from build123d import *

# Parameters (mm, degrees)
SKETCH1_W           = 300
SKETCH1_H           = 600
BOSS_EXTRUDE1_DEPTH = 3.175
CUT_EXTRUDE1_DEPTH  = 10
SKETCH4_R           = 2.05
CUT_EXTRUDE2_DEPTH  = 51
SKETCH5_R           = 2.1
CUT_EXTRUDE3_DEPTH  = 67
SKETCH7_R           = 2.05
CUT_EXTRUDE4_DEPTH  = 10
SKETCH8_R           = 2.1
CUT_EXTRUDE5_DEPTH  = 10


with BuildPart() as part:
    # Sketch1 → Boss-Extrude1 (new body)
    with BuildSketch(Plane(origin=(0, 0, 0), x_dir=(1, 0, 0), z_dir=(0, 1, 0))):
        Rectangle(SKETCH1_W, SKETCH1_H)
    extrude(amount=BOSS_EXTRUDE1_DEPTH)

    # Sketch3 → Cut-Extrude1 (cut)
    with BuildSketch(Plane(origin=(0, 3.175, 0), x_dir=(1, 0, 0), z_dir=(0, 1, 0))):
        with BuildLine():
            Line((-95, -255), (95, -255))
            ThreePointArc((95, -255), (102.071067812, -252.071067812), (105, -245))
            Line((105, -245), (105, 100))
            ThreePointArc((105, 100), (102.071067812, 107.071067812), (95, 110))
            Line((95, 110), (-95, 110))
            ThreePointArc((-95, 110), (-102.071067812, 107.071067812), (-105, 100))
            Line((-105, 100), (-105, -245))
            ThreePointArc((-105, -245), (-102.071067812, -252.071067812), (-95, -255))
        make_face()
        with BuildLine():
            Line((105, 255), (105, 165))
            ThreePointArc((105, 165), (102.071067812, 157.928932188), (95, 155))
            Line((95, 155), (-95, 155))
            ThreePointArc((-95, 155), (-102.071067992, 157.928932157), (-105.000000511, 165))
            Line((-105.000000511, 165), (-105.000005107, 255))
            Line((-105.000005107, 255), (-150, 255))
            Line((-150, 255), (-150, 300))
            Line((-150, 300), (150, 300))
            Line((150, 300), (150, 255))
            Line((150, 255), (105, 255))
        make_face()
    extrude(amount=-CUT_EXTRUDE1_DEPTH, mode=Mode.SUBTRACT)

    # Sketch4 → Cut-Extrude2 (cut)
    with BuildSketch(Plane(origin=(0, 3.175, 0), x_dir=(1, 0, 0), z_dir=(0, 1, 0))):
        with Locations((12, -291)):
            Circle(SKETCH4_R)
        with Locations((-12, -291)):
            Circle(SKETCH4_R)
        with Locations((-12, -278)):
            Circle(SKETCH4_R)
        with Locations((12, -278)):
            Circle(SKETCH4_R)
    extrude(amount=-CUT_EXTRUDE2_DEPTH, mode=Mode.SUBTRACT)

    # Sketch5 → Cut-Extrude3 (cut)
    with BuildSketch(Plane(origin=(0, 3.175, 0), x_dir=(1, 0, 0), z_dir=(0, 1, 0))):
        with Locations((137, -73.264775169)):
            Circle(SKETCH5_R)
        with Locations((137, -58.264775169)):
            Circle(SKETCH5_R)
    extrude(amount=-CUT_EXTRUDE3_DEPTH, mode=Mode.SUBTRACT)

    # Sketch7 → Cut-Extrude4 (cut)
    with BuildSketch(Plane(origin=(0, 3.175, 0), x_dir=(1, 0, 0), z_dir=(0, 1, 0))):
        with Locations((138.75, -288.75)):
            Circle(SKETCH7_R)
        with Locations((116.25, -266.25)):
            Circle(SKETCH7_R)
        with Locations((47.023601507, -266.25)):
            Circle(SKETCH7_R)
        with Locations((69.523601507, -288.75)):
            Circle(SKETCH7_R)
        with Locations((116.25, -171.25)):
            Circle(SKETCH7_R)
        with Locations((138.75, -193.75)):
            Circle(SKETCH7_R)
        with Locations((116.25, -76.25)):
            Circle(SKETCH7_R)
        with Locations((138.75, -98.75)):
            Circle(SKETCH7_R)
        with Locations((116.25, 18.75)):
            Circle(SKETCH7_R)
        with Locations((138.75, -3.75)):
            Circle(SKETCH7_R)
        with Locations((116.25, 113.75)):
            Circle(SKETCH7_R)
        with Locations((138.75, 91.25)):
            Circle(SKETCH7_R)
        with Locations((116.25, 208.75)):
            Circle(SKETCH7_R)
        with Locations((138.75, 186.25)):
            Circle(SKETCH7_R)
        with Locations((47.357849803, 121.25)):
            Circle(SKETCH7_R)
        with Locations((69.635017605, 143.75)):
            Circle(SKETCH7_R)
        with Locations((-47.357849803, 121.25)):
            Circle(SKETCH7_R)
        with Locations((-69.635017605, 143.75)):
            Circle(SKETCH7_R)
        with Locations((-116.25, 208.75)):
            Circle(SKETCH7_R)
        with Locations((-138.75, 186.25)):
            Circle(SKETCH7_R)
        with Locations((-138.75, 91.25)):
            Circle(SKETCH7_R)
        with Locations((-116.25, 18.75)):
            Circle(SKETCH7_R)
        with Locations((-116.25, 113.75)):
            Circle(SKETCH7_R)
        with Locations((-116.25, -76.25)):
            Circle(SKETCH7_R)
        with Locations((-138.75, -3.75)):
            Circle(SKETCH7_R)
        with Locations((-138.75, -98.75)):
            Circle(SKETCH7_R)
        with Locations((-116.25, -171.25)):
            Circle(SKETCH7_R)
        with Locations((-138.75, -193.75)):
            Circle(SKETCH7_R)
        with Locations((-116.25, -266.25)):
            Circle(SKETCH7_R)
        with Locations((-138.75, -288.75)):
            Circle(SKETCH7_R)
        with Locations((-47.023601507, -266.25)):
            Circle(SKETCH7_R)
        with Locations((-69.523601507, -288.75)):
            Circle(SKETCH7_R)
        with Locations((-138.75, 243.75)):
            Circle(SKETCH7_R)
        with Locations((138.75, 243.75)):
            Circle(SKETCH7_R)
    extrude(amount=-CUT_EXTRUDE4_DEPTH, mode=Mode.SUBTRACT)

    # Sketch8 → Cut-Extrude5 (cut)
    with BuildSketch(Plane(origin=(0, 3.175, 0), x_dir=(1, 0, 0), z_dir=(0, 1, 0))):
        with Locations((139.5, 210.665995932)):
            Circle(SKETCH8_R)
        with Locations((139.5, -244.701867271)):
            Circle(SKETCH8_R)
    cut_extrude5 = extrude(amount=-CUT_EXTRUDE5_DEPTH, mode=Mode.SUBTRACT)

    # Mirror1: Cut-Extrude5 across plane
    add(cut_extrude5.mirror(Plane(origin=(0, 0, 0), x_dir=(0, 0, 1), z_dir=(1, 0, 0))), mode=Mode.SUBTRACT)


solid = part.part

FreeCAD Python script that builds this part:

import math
import FreeCAD as App
import Part
import Sketcher

V = App.Vector
Q = App.Units.Quantity


def add_polygon(sketch, points):
    """Adds a closed chain of lines whose ends are joined by coincident constraints."""
    first, n = sketch.GeometryCount, len(points)
    for a, b in zip(points, points[1:] + points[:1]):
        sketch.addGeometry(Part.LineSegment(App.Vector(*a, 0), App.Vector(*b, 0)), False)
    for i in range(n):
        sketch.addConstraint(Sketcher.Constraint("Coincident", first + i, 2, first + (i + 1) % n, 1))

doc = App.newDocument("Part")
body = doc.addObject("PartDesign::Body", "Body")

sketch1 = body.newObject("Sketcher::SketchObject", "Sketch")
sketch1.AttachmentSupport = (doc.getObject("XZ_Plane"), [""])
sketch1.MapMode = "FlatFace"
add_polygon(sketch1, [(-150, -300), (-150, 300), (150, 300), (150, -300)])
sketch1.addConstraint([
    Sketcher.Constraint("Vertical", 0),
    Sketcher.Constraint("Horizontal", 1),
    Sketcher.Constraint("Vertical", 2),
    Sketcher.Constraint("Horizontal", 3),
    Sketcher.Constraint("Symmetric", 0, 2, 2, 2, -1, 1),
    Sketcher.Constraint("DistanceX", 1, 1, 1, 2, Q("300 mm")),
    Sketcher.Constraint("DistanceY", 0, 1, 0, 2, Q("600 mm")),
])
pad1 = body.newObject("PartDesign::Pad", "Pad")
pad1.Profile = sketch1
pad1.Length = 3.175
pad1.Reversed = True

sketch2 = body.newObject("Sketcher::SketchObject", "Sketch001")
sketch2.AttachmentSupport = (doc.getObject("XZ_Plane"), [""])
sketch2.MapMode = "FlatFace"
sketch2.AttachmentOffset = App.Placement(V(0, 0, -3.175), App.Rotation())
sketch2.addGeometry([
    Part.LineSegment(V(-95, 255, 0), V(95, 255, 0)),
    Part.ArcOfCircle(Part.Circle(V(95, 245, 0), V(0, 0, 1), 10), math.radians(0), math.radians(90)),
    Part.LineSegment(V(105, 245, 0), V(105, -100, 0)),
    Part.ArcOfCircle(Part.Circle(V(95, -100, 0), V(0, 0, 1), 10), math.radians(-90), math.radians(0)),
    Part.LineSegment(V(95, -110, 0), V(-95, -110, 0)),
    Part.ArcOfCircle(Part.Circle(V(-95, -100, 0), V(0, 0, 1), 10), math.radians(180), math.radians(270)),
    Part.LineSegment(V(-105, -100, 0), V(-105, 245, 0)),
    Part.ArcOfCircle(Part.Circle(V(-95, 245, 0), V(0, 0, 1), 10), math.radians(90), math.radians(180)),
    Part.LineSegment(V(105, -165, 0), V(105, -255, 0)),
    Part.LineSegment(V(105, -255, 0), V(150, -255, 0)),
    Part.LineSegment(V(150, -255, 0), V(150, -300, 0)),
    Part.LineSegment(V(150, -300, 0), V(-150, -300, 0)),
    Part.LineSegment(V(-150, -300, 0), V(-150, -255, 0)),
    Part.LineSegment(V(-150, -255, 0), V(-105, -255, 0)),
    Part.LineSegment(V(-105, -255, 0), V(-105, -165, 0)),
    Part.ArcOfCircle(Part.Circle(V(-95, -165, 0), V(0, 0, 1), 10), math.radians(90), math.radians(180)),
    Part.LineSegment(V(-95, -155, 0), V(95, -155, 0)),
    Part.ArcOfCircle(Part.Circle(V(95, -165, 0), V(0, 0, 1), 10), math.radians(0), math.radians(90)),
], False)
sketch2.addConstraint([
    Sketcher.Constraint("Tangent", 0, 2, 1, 2),
    Sketcher.Constraint("Tangent", 1, 1, 2, 1),
    Sketcher.Constraint("Tangent", 2, 2, 3, 2),
    Sketcher.Constraint("Tangent", 3, 1, 4, 1),
    Sketcher.Constraint("Tangent", 4, 2, 5, 2),
    Sketcher.Constraint("Tangent", 5, 1, 6, 1),
    Sketcher.Constraint("Tangent", 6, 2, 7, 2),
    Sketcher.Constraint("Tangent", 7, 1, 0, 1),
    Sketcher.Constraint("Coincident", 8, 2, 9, 1),
    Sketcher.Constraint("Coincident", 9, 2, 10, 1),
    Sketcher.Constraint("Coincident", 10, 2, 11, 1),
    Sketcher.Constraint("Coincident", 11, 2, 12, 1),
    Sketcher.Constraint("Coincident", 12, 2, 13, 1),
    Sketcher.Constraint("Coincident", 13, 2, 14, 1),
    Sketcher.Constraint("Tangent", 14, 2, 15, 2),
    Sketcher.Constraint("Tangent", 15, 1, 16, 1),
    Sketcher.Constraint("Tangent", 16, 2, 17, 2),
    Sketcher.Constraint("Tangent", 17, 1, 8, 1),
    Sketcher.Constraint("Horizontal", 0),
    Sketcher.Constraint("Vertical", 2),
    Sketcher.Constraint("Horizontal", 4),
    Sketcher.Constraint("Vertical", 6),
    Sketcher.Constraint("Vertical", 8),
    Sketcher.Constraint("Horizontal", 9),
    Sketcher.Constraint("Vertical", 10),
    Sketcher.Constraint("Horizontal", 11),
    Sketcher.Constraint("Vertical", 12),
    Sketcher.Constraint("Horizontal", 13),
    Sketcher.Constraint("Horizontal", 16),
    Sketcher.Constraint("Equal", 1, 3),
    Sketcher.Constraint("Equal", 3, 5),
    Sketcher.Constraint("Equal", 5, 7),
    Sketcher.Constraint("Equal", 7, 15),
    Sketcher.Constraint("Equal", 15, 17),
    Sketcher.Constraint("Symmetric", 9, 2, 12, 2, -2),
    Sketcher.Constraint("Symmetric", 14, 2, 17, 1, -2),
    Sketcher.Constraint("Vertical", 7, 3, 15, 3),
    Sketcher.Constraint("Vertical", 3, 3, 17, 3),
    Sketcher.Constraint("Equal", 9, 10),
    Sketcher.Constraint("Radius", 1, Q("10 mm")),
    Sketcher.Constraint("DistanceX", 0, 1, 0, 2, Q("190 mm")),
    Sketcher.Constraint("DistanceX", 9, 1, 9, 2, Q("45 mm")),
    Sketcher.Constraint("DistanceY", 2, 2, 2, 1, Q("345 mm")),
    Sketcher.Constraint("DistanceY", 8, 2, 8, 1, Q("90 mm")),
    Sketcher.Constraint("DistanceY", -1, 1, 1, 3, Q("245 mm")),
    Sketcher.Constraint("DistanceY", 15, 3, -1, 1, Q("165.000001 mm")),
])
pocket1 = body.newObject("PartDesign::Pocket", "Pocket")
pocket1.Profile = sketch2
pocket1.Length = 10
pocket1.Reversed = True

sketch3 = body.newObject("Sketcher::SketchObject", "Sketch002")
sketch3.AttachmentSupport = (doc.getObject("XZ_Plane"), [""])
sketch3.MapMode = "FlatFace"
sketch3.AttachmentOffset = App.Placement(V(0, 0, -3.175), App.Rotation())
sketch3.addGeometry([
    Part.Circle(V(12, 291, 0), V(0, 0, 1), 2),
    Part.Circle(V(-12, 291, 0), V(0, 0, 1), 2),
    Part.Circle(V(-12, 278, 0), V(0, 0, 1), 2),
    Part.Circle(V(12, 278, 0), V(0, 0, 1), 2),
], False)
sketch3.addConstraint([
    Sketcher.Constraint("Equal", 0, 1),
    Sketcher.Constraint("Equal", 1, 2),
    Sketcher.Constraint("Equal", 2, 3),
    Sketcher.Constraint("Symmetric", 0, 3, 1, 3, -2),
    Sketcher.Constraint("Symmetric", 2, 3, 3, 3, -2),
    Sketcher.Constraint("Vertical", 1, 3, 2, 3),
    Sketcher.Constraint("Diameter", 0, Q("4.1 mm")),
    Sketcher.Constraint("DistanceX", -1, 1, 0, 3, Q("12 mm")),
    Sketcher.Constraint("DistanceY", -1, 1, 0, 3, Q("291 mm")),
    Sketcher.Constraint("DistanceY", -1, 1, 2, 3, Q("278 mm")),
])
pocket2 = body.newObject("PartDesign::Pocket", "Pocket001")
pocket2.Profile = sketch3
pocket2.Length = 51
pocket2.Reversed = True

sketch4 = body.newObject("Sketcher::SketchObject", "Sketch003")
sketch4.AttachmentSupport = (doc.getObject("XZ_Plane"), [""])
sketch4.MapMode = "FlatFace"
sketch4.AttachmentOffset = App.Placement(V(0, 0, -3.175), App.Rotation())
sketch4.addGeometry([
    Part.Circle(V(137, 73.3, 0), V(0, 0, 1), 2.1),
    Part.Circle(V(137, 58.3, 0), V(0, 0, 1), 2.1),
], False)
sketch4.addConstraint([
    Sketcher.Constraint("Equal", 0, 1),
    Sketcher.Constraint("Vertical", 0, 3, 1, 3),
    Sketcher.Constraint("Diameter", 0, Q("4.2 mm")),
    Sketcher.Constraint("DistanceX", -1, 1, 0, 3, Q("137 mm")),
    Sketcher.Constraint("DistanceY", 1, 3, 0, 3, Q("15 mm")),
    Sketcher.Constraint("DistanceY", -1, 1, 0, 3, Q("73.264775 mm")),
])
pocket3 = body.newObject("PartDesign::Pocket", "Pocket002")
pocket3.Profile = sketch4
pocket3.Length = 67
pocket3.Reversed = True

sketch5 = body.newObject("Sketcher::SketchObject", "Sketch004")
sketch5.AttachmentSupport = (doc.getObject("XZ_Plane"), [""])
sketch5.MapMode = "FlatFace"
sketch5.AttachmentOffset = App.Placement(V(0, 0, -3.175), App.Rotation())
sketch5.addGeometry([
    Part.Circle(V(138.8, 288.8, 0), V(0, 0, 1), 2),
    Part.Circle(V(116.2, 266.2, 0), V(0, 0, 1), 2),
    Part.Circle(V(47, 266.2, 0), V(0, 0, 1), 2),
    Part.Circle(V(69.5, 288.8, 0), V(0, 0, 1), 2),
    Part.Circle(V(116.2, 171.2, 0), V(0, 0, 1), 2),
    Part.Circle(V(138.8, 193.8, 0), V(0, 0, 1), 2),
    Part.Circle(V(116.2, 76.2, 0), V(0, 0, 1), 2),
    Part.Circle(V(138.8, 98.8, 0), V(0, 0, 1), 2),
    Part.Circle(V(116.2, -18.8, 0), V(0, 0, 1), 2),
    Part.Circle(V(138.8, 3.8, 0), V(0, 0, 1), 2),
    Part.Circle(V(116.2, -113.8, 0), V(0, 0, 1), 2),
    Part.Circle(V(138.8, -91.2, 0), V(0, 0, 1), 2),
    Part.Circle(V(116.2, -208.8, 0), V(0, 0, 1), 2),
    Part.Circle(V(138.8, -186.2, 0), V(0, 0, 1), 2),
    Part.Circle(V(47.4, -121.2, 0), V(0, 0, 1), 2),
    Part.Circle(V(69.6, -143.8, 0), V(0, 0, 1), 2),
    Part.Circle(V(-47.4, -121.2, 0), V(0, 0, 1), 2),
    Part.Circle(V(-69.6, -143.8, 0), V(0, 0, 1), 2),
    Part.Circle(V(-116.2, -208.8, 0), V(0, 0, 1), 2),
    Part.Circle(V(-138.8, -186.2, 0), V(0, 0, 1), 2),
    Part.Circle(V(-138.8, -91.2, 0), V(0, 0, 1), 2),
    Part.Circle(V(-116.2, -18.8, 0), V(0, 0, 1), 2),
    Part.Circle(V(-116.2, -113.8, 0), V(0, 0, 1), 2),
    Part.Circle(V(-116.2, 76.2, 0), V(0, 0, 1), 2),
    Part.Circle(V(-138.8, 3.8, 0), V(0, 0, 1), 2),
    Part.Circle(V(-138.8, 98.8, 0), V(0, 0, 1), 2),
    Part.Circle(V(-116.2, 171.2, 0), V(0, 0, 1), 2),
    Part.Circle(V(-138.8, 193.8, 0), V(0, 0, 1), 2),
    Part.Circle(V(-116.2, 266.2, 0), V(0, 0, 1), 2),
    Part.Circle(V(-138.8, 288.8, 0), V(0, 0, 1), 2),
    Part.Circle(V(-47, 266.2, 0), V(0, 0, 1), 2),
    Part.Circle(V(-69.5, 288.8, 0), V(0, 0, 1), 2),
    Part.Circle(V(-138.8, -243.8, 0), V(0, 0, 1), 2),
    Part.Circle(V(138.8, -243.8, 0), V(0, 0, 1), 2),
], False)
sketch5.addConstraint([
    Sketcher.Constraint("Equal", 0, 1),
    Sketcher.Constraint("Equal", 1, 2),
    Sketcher.Constraint("Equal", 2, 3),
    Sketcher.Constraint("Equal", 3, 4),
    Sketcher.Constraint("Equal", 4, 5),
    Sketcher.Constraint("Equal", 5, 6),
    Sketcher.Constraint("Equal", 6, 7),
    Sketcher.Constraint("Equal", 7, 8),
    Sketcher.Constraint("Equal", 8, 9),
    Sketcher.Constraint("Equal", 9, 10),
    Sketcher.Constraint("Equal", 10, 11),
    Sketcher.Constraint("Equal", 11, 12),
    Sketcher.Constraint("Equal", 12, 13),
    Sketcher.Constraint("Equal", 13, 14),
    Sketcher.Constraint("Equal", 14, 15),
    Sketcher.Constraint("Equal", 15, 16),
    Sketcher.Constraint("Equal", 16, 17),
    Sketcher.Constraint("Equal", 17, 18),
    Sketcher.Constraint("Equal", 18, 19),
    Sketcher.Constraint("Equal", 19, 20),
    Sketcher.Constraint("Equal", 20, 21),
    Sketcher.Constraint("Equal", 21, 22),
    Sketcher.Constraint("Equal", 22, 23),
    Sketcher.Constraint("Equal", 23, 24),
    Sketcher.Constraint("Equal", 24, 25),
    Sketcher.Constraint("Equal", 25, 26),
    Sketcher.Constraint("Equal", 26, 27),
    Sketcher.Constraint("Equal", 27, 28),
    Sketcher.Constraint("Equal", 28, 29),
    Sketcher.Constraint("Equal", 29, 30),
    Sketcher.Constraint("Equal", 30, 31),
    Sketcher.Constraint("Equal", 31, 32),
    Sketcher.Constraint("Equal", 32, 33),
    Sketcher.Constraint("Symmetric", 14, 3, 16, 3, -2),
    Sketcher.Constraint("Symmetric", 15, 3, 17, 3, -2),
    Sketcher.Constraint("Symmetric", 12, 3, 18, 3, -2),
    Sketcher.Constraint("Symmetric", 13, 3, 19, 3, -2),
    Sketcher.Constraint("Symmetric", 11, 3, 20, 3, -2),
    Sketcher.Constraint("Symmetric", 8, 3, 21, 3, -2),
    Sketcher.Constraint("Symmetric", 10, 3, 22, 3, -2),
    Sketcher.Constraint("Symmetric", 6, 3, 23, 3, -2),
    Sketcher.Constraint("Symmetric", 9, 3, 24, 3, -2),
    Sketcher.Constraint("Symmetric", 7, 3, 25, 3, -2),
    Sketcher.Constraint("Symmetric", 4, 3, 26, 3, -2),
    Sketcher.Constraint("Symmetric", 5, 3, 27, 3, -2),
    Sketcher.Constraint("Symmetric", 1, 3, 28, 3, -2),
    Sketcher.Constraint("Symmetric", 0, 3, 29, 3, -2),
    Sketcher.Constraint("Symmetric", 2, 3, 30, 3, -2),
    Sketcher.Constraint("Symmetric", 3, 3, 31, 3, -2),
    Sketcher.Constraint("Symmetric", 32, 3, 33, 3, -2),
    Sketcher.Constraint("Horizontal", 1, 3, 2, 3),
    Sketcher.Constraint("Horizontal", 0, 3, 3, 3),
    Sketcher.Constraint("Vertical", 1, 3, 4, 3),
    Sketcher.Constraint("Vertical", 0, 3, 5, 3),
    Sketcher.Constraint("Vertical", 4, 3, 6, 3),
    Sketcher.Constraint("Vertical", 5, 3, 7, 3),
    Sketcher.Constraint("Vertical", 6, 3, 8, 3),
    Sketcher.Constraint("Vertical", 7, 3, 9, 3),
    Sketcher.Constraint("Vertical", 8, 3, 10, 3),
    Sketcher.Constraint("Vertical", 9, 3, 11, 3),
    Sketcher.Constraint("Vertical", 10, 3, 12, 3),
    Sketcher.Constraint("Vertical", 11, 3, 13, 3),
    Sketcher.Constraint("Vertical", 29, 3, 32, 3),
    Sketcher.Constraint("Diameter", 0, Q("4.1 mm")),
    Sketcher.Constraint("DistanceY", 4, 3, 1, 3, Q("95 mm")),
    Sketcher.Constraint("DistanceY", 5, 3, 0, 3, Q("95 mm")),
    Sketcher.Constraint("DistanceY", 6, 3, 4, 3, Q("95 mm")),
    Sketcher.Constraint("DistanceY", 7, 3, 5, 3, Q("95 mm")),
    Sketcher.Constraint("DistanceY", 8, 3, 6, 3, Q("95 mm")),
    Sketcher.Constraint("DistanceY", 9, 3, 7, 3, Q("95 mm")),
    Sketcher.Constraint("DistanceY", 10, 3, 8, 3, Q("95 mm")),
    Sketcher.Constraint("DistanceY", 11, 3, 9, 3, Q("95 mm")),
    Sketcher.Constraint("DistanceY", 12, 3, 10, 3, Q("95 mm")),
    Sketcher.Constraint("DistanceY", 13, 3, 11, 3, Q("95 mm")),
    Sketcher.Constraint("DistanceY", 14, 3, 11, 3, Q("30 mm")),
    Sketcher.Constraint("DistanceY", 15, 3, 10, 3, Q("30 mm")),
    Sketcher.Constraint("DistanceY", 32, 3, 18, 3, Q("35 mm")),
    Sketcher.Constraint("DistanceX", 1, 3, 0, 3, Q("22.5 mm")),
    Sketcher.Constraint("DistanceY", 1, 3, 0, 3, Q("22.5 mm")),
    Sketcher.Constraint("DistanceX", 2, 3, 3, 3, Q("22.5 mm")),
    Sketcher.Constraint("DistanceX", 18, 3, 12, 3, Q("232.5 mm")),
    Sketcher.Constraint("DistanceY", -1, 1, 0, 3, Q("288.75 mm")),
    Sketcher.Constraint("DistanceX", -1, 1, 2, 3, Q("47.023602 mm")),
    Sketcher.Constraint("DistanceX", 16, 3, 14, 3, Q("94.7157 mm")),
    Sketcher.Constraint("DistanceX", -1, 1, 15, 3, Q("69.635018 mm")),
])
pocket4 = body.newObject("PartDesign::Pocket", "Pocket003")
pocket4.Profile = sketch5
pocket4.Length = 10
pocket4.Reversed = True

sketch6 = body.newObject("Sketcher::SketchObject", "Sketch005")
sketch6.AttachmentSupport = (doc.getObject("XZ_Plane"), [""])
sketch6.MapMode = "FlatFace"
sketch6.AttachmentOffset = App.Placement(V(0, 0, -3.175), App.Rotation())
sketch6.addGeometry([
    Part.Circle(V(139.5, -210.7, 0), V(0, 0, 1), 2.1),
    Part.Circle(V(139.5, 244.7, 0), V(0, 0, 1), 2.1),
], False)
sketch6.addConstraint([
    Sketcher.Constraint("Equal", 0, 1),
    Sketcher.Constraint("Vertical", 0, 3, 1, 3),
    Sketcher.Constraint("Diameter", 0, Q("4.2 mm")),
    Sketcher.Constraint("DistanceX", -1, 1, 0, 3, Q("139.5 mm")),
    Sketcher.Constraint("DistanceY", 0, 3, -1, 1, Q("210.665996 mm")),
    Sketcher.Constraint("DistanceY", -1, 1, 1, 3, Q("244.701867 mm")),
])
pocket5 = body.newObject("PartDesign::Pocket", "Pocket004")
pocket5.Profile = sketch6
pocket5.Length = 10
pocket5.Reversed = True
doc.recompute()

mirrored = body.newObject("PartDesign::Mirrored", "Mirrored")
mirrored.Originals = [pocket5]
mirrored.MirrorPlane = (doc.getObject("YZ_Plane"), [""])
body.Tip = mirrored

doc.recompute()
